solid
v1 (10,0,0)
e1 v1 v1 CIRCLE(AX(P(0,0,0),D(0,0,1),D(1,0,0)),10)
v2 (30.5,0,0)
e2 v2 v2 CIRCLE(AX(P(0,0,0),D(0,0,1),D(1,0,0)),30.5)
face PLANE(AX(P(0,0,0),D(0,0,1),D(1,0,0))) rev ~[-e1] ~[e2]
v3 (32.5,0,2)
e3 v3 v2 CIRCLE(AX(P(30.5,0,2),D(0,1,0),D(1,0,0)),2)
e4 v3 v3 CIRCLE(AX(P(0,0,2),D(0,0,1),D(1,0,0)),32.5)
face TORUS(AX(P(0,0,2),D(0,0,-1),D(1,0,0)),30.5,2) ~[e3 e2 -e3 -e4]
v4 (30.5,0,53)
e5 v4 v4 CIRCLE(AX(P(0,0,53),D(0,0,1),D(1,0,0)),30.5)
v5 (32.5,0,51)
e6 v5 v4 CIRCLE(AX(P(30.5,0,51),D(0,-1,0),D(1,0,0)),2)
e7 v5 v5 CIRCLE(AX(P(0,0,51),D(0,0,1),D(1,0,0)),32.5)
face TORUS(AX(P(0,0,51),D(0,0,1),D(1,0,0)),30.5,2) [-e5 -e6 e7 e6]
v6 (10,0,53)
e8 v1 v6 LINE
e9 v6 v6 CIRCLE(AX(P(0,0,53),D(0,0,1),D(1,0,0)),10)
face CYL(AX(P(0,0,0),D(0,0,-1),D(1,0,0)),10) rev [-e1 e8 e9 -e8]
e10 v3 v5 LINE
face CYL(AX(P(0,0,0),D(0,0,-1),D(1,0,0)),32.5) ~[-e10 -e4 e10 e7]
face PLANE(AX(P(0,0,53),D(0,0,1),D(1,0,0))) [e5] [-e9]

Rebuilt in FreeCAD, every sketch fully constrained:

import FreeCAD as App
import Part
import Sketcher

V = App.Vector
Q = App.Units.Quantity


def edges_at(feature, points):
    """Names of the edges that pass closest to the given points."""
    edges = feature.Shape.Edges
    near = lambda p: min(range(len(edges)), key=lambda i: edges[i].distToShape(Part.Vertex(*p))[0])
    return sorted({f"Edge{near(p) + 1}" for p in points})

doc = App.newDocument("Part")
body = doc.addObject("PartDesign::Body", "Body")

# Sketch on XY plane
sketch1 = body.newObject("Sketcher::SketchObject", "Sketch")
sketch1.AttachmentSupport = (doc.getObject("XY_Plane"), [""])
sketch1.MapMode = "FlatFace"
sketch1.addGeometry([
    Part.Circle(V(0, 0, 0), V(0, 0, 1), 32),
    Part.Circle(V(0, 0, 0), V(0, 0, 1), 10),
], False)
sketch1.addConstraint([
    Sketcher.Constraint("Coincident", 0, 3, -1, 1),
    Sketcher.Constraint("Coincident", 1, 3, -1, 1),
    Sketcher.Constraint("Diameter", 0, Q("65 mm")),
    Sketcher.Constraint("Diameter", 1, Q("20 mm")),
])
pad1 = body.newObject("PartDesign::Pad", "Pad")
pad1.Profile = sketch1
pad1.Length = 53
doc.recompute()

fillet = body.newObject("PartDesign::Fillet", "Fillet")
fillet.Base = (pad1, edges_at(pad1, [(-32.5, 0, 53), (-32.5, 0, 0)]))
fillet.Radius = 2

doc.recompute()
